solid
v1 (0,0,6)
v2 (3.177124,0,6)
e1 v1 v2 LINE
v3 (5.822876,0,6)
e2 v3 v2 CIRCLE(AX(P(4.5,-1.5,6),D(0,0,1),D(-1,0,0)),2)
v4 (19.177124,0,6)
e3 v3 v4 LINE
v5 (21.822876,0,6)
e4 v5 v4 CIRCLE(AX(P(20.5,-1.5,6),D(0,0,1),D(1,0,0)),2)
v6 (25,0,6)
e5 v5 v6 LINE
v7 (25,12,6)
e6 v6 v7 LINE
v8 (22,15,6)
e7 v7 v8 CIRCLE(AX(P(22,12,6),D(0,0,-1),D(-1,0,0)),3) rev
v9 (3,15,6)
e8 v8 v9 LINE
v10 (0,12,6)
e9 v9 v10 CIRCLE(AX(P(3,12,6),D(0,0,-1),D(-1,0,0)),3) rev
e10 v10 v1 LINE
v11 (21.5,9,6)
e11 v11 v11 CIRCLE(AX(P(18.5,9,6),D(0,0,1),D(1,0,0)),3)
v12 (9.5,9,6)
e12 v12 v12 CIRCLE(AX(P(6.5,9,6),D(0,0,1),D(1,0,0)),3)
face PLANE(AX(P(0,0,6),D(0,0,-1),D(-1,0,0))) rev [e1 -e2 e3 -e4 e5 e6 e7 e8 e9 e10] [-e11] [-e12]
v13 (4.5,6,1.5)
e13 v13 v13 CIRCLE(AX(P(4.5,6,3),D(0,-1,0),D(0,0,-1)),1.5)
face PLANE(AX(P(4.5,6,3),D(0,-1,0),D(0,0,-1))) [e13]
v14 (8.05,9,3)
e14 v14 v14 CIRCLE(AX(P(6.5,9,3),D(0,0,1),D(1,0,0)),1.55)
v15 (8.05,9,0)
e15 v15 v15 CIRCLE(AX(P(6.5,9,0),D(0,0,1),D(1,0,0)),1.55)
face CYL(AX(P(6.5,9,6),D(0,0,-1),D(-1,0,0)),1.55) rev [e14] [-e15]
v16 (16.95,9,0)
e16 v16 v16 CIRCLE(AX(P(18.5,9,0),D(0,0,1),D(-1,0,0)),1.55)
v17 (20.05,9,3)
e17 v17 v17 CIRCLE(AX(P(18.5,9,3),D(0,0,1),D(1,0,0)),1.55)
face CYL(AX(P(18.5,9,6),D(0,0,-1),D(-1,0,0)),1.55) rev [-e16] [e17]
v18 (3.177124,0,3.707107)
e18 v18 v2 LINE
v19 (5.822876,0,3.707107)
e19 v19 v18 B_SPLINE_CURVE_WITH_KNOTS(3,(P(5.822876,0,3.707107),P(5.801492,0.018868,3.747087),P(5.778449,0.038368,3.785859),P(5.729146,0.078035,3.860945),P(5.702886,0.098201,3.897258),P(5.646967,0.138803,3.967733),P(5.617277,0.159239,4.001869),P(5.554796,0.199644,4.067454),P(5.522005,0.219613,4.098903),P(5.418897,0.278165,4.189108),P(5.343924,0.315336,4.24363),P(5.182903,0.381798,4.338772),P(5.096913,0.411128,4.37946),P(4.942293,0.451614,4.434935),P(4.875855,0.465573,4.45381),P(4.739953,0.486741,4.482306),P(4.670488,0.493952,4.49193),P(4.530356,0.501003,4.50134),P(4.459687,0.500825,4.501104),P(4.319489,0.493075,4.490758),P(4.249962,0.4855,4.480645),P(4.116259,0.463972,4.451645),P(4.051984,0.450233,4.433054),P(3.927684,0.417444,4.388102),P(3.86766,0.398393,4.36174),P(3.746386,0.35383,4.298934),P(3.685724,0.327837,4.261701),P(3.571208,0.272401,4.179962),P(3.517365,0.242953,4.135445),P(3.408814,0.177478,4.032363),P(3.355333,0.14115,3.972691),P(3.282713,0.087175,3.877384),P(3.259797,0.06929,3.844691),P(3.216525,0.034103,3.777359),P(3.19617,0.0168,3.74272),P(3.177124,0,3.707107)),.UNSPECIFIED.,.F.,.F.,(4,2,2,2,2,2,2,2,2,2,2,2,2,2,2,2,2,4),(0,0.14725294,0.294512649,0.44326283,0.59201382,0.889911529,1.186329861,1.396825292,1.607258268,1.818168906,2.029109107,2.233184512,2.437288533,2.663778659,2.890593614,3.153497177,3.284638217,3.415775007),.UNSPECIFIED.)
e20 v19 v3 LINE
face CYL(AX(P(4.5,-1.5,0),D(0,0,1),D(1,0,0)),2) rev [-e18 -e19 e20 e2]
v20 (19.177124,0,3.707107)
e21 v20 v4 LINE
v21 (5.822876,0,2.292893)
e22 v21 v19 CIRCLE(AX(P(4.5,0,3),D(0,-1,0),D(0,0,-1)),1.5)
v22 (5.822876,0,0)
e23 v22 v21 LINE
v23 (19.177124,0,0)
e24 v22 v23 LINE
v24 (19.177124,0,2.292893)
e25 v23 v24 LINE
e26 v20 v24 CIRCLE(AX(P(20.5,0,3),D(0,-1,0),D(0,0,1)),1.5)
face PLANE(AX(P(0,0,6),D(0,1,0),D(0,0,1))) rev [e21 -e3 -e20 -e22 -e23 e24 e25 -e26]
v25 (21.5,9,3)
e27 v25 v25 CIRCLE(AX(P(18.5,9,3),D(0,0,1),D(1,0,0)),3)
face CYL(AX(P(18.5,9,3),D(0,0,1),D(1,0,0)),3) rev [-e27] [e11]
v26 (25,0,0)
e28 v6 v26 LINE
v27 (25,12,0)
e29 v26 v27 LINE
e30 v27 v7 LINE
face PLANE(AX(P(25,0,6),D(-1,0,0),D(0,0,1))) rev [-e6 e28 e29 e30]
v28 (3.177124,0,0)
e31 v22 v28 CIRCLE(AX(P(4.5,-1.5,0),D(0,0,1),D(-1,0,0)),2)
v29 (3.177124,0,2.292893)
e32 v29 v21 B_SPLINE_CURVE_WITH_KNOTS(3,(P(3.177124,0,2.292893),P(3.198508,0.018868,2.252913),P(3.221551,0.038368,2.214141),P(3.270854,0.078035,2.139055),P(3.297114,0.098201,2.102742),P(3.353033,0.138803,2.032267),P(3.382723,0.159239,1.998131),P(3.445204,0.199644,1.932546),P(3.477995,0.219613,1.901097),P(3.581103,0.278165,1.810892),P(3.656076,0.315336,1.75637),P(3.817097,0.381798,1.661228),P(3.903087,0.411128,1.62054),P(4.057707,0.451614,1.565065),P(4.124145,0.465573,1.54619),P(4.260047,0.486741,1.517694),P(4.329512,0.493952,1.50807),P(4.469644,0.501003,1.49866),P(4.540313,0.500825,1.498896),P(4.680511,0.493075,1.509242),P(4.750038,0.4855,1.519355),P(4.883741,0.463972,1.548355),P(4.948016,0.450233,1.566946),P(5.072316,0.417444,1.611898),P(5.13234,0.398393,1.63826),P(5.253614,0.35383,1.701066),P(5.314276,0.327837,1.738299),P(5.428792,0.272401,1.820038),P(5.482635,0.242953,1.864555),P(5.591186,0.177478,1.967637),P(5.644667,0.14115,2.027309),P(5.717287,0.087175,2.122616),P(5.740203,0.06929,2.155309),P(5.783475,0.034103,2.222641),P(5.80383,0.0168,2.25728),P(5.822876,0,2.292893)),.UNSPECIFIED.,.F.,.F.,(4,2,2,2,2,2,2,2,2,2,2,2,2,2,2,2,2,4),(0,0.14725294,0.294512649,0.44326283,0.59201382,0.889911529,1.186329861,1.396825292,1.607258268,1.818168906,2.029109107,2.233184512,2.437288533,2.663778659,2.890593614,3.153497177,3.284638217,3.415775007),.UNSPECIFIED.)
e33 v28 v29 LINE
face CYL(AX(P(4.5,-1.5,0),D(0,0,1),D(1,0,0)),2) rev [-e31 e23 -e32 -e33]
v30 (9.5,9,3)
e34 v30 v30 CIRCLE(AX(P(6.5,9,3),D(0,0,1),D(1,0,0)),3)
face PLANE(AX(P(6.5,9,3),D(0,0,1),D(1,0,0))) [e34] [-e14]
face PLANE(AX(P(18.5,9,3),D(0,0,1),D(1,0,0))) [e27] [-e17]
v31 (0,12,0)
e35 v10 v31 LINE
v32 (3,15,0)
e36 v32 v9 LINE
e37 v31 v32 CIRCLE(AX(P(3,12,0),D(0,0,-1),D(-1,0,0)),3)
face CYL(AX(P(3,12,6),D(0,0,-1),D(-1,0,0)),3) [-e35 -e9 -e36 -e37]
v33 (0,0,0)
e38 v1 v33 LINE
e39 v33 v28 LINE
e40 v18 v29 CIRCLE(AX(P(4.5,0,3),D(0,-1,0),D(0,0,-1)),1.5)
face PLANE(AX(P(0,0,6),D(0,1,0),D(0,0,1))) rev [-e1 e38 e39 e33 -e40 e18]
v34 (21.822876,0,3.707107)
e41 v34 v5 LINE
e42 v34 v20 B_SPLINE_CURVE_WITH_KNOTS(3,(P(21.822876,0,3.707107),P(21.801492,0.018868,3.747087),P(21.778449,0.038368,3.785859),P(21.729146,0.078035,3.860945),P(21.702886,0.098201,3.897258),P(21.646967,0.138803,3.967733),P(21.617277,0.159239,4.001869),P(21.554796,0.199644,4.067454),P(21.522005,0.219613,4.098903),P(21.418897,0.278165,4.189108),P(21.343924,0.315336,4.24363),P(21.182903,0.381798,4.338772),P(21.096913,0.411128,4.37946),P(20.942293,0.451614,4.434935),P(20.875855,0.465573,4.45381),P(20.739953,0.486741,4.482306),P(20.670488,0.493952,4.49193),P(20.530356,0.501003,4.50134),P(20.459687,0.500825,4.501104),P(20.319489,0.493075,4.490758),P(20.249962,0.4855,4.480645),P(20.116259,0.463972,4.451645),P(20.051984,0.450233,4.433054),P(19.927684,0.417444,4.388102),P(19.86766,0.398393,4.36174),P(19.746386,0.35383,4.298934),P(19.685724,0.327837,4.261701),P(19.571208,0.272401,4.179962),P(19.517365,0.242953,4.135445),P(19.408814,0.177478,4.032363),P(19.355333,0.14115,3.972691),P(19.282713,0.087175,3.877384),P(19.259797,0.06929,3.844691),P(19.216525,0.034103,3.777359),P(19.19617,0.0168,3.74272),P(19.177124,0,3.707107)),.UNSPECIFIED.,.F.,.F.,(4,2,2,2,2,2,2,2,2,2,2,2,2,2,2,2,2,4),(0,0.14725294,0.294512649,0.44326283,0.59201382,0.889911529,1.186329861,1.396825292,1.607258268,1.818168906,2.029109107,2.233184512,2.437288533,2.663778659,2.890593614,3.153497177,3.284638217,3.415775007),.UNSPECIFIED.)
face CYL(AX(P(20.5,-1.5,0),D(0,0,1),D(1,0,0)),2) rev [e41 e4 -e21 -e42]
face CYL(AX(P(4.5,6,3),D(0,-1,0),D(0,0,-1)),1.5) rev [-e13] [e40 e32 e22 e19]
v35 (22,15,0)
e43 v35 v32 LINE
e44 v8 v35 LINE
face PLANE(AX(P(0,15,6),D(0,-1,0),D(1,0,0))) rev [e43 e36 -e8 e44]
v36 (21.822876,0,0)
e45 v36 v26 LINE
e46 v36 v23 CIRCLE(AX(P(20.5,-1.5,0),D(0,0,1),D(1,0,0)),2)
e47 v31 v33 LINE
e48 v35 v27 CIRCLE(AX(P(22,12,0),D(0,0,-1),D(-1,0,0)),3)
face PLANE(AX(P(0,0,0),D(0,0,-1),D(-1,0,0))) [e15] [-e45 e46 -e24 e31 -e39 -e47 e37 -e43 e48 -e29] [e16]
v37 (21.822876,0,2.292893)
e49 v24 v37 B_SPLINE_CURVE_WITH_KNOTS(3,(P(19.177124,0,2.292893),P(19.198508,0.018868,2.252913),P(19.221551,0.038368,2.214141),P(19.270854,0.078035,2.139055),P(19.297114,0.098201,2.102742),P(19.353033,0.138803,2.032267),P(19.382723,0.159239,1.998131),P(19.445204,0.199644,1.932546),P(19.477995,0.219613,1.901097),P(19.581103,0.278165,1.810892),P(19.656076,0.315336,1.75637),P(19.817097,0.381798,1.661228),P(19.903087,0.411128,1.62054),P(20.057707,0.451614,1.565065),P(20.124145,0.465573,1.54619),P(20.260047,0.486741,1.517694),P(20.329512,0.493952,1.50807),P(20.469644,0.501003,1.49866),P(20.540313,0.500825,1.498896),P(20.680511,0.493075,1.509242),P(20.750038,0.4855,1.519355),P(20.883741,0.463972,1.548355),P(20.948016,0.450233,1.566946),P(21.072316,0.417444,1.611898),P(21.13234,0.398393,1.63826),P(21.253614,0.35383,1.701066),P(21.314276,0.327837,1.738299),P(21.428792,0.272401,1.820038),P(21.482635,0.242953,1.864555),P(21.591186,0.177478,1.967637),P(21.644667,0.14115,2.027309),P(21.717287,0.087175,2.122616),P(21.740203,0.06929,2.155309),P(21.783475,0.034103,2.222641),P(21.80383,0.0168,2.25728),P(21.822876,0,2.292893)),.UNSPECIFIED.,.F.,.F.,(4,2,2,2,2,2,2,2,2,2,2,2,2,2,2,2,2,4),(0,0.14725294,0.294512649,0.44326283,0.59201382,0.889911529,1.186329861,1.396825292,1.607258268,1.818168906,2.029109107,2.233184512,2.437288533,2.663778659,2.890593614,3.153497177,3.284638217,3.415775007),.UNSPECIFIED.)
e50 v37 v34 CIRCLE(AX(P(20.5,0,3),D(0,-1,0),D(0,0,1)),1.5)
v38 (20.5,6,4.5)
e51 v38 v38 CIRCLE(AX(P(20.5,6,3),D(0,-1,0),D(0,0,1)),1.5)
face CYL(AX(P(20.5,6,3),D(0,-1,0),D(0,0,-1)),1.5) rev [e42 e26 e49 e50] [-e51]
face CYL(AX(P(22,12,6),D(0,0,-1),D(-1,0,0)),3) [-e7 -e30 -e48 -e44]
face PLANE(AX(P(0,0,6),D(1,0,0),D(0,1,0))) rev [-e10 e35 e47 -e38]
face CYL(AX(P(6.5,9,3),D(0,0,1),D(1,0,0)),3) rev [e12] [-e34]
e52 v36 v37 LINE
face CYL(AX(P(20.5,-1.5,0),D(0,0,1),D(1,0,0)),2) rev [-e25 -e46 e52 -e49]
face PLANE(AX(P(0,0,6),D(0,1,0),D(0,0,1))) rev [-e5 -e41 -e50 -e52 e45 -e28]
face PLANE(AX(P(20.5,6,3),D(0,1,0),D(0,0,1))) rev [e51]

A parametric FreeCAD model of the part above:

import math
import FreeCAD as App
import Part
import Sketcher


def edges_at(feature, points):
    """Names of the edges that pass closest to the given points."""
    edges = feature.Shape.Edges
    near = lambda p: min(range(len(edges)), key=lambda i: edges[i].distToShape(Part.Vertex(*p))[0])
    return sorted({f"Edge{near(p) + 1}" for p in points})

doc = App.newDocument("Part")
body = doc.addObject("PartDesign::Body", "Body")

# Sketch on XY plane
sketch1 = doc.addObject("Sketcher::SketchObject", "Sketch")
body.addObject(sketch1)
sketch1.AttachmentSupport = (doc.XY_Plane, [""])
sketch1.MapMode = "FlatFace"
sketch1.addGeometry([
    Part.LineSegment(App.Vector(0, 15, 0), App.Vector(0, 0, 0)),  # 0
    Part.LineSegment(App.Vector(0, 0, 0), App.Vector(25, 0, 0)),  # 1
    Part.LineSegment(App.Vector(25, 0, 0), App.Vector(25, 15, 0)),  # 2
    Part.LineSegment(App.Vector(25, 15, 0), App.Vector(0, 15, 0)),  # 3
    Part.Circle(App.Vector(6.5, 9, 0), App.Vector(0, 0, 1), 1.6),  # 4
    Part.Circle(App.Vector(18.5, 9, 0), App.Vector(0, 0, 1), 1.6),  # 5
], False)
sketch1.addConstraint([
    Sketcher.Constraint("Coincident", 0, 2, 1, 1),
    Sketcher.Constraint("Coincident", 1, 2, 2, 1),
    Sketcher.Constraint("Coincident", 2, 2, 3, 1),
    Sketcher.Constraint("Coincident", 3, 2, 0, 1),
    Sketcher.Constraint("Vertical", 0),
    Sketcher.Constraint("Horizontal", 1),
    Sketcher.Constraint("Vertical", 2),
    Sketcher.Constraint("Horizontal", 3),
    Sketcher.Constraint("Coincident", 0, 2, -1, 1),
    Sketcher.Constraint("Equal", 4, 5),
    Sketcher.Constraint("Horizontal", 4, 3, 5, 3),
    Sketcher.Constraint("Diameter", 4, 3.1),
    Sketcher.Constraint("DistanceX", 1, 1, 1, 2, 25.0),
    Sketcher.Constraint("DistanceY", 0, 2, 0, 1, 15.0),
    Sketcher.Constraint("DistanceY", -1, 1, 4, 3, 9.0),
    Sketcher.Constraint("DistanceX", 4, 3, 5, 3, 12.0),
    Sketcher.Constraint("DistanceX", -1, 1, 4, 3, 6.5),
])
pad1 = doc.addObject("PartDesign::Pad", "Pad")
body.addObject(pad1)
pad1.Profile = sketch1
pad1.Length = 6

# Sketch on XZ plane
sketch2 = doc.addObject("Sketcher::SketchObject", "Sketch001")
body.addObject(sketch2)
sketch2.AttachmentSupport = (doc.XZ_Plane, [""])
sketch2.MapMode = "FlatFace"
sketch2.addGeometry([
    Part.Circle(App.Vector(4.5, 3, 0), App.Vector(0, 0, 1), 1.5),
    Part.Circle(App.Vector(20.5, 3, 0), App.Vector(0, 0, 1), 1.5),
], False)
sketch2.addConstraint([
    Sketcher.Constraint("Equal", 0, 1),
    Sketcher.Constraint("Horizontal", 0, 3, 1, 3),
    Sketcher.Constraint("Diameter", 0, 3.0),
    Sketcher.Constraint("DistanceY", -1, 1, 0, 3, 3.0),
    Sketcher.Constraint("DistanceX", 0, 3, 1, 3, 16.0),
    Sketcher.Constraint("DistanceX", -1, 1, 0, 3, 4.5),
])
pocket1 = doc.addObject("PartDesign::Pocket", "Pocket")
body.addObject(pocket1)
pocket1.Profile = sketch2
pocket1.Length = 6

# Sketch on XY plane
sketch3 = doc.addObject("Sketcher::SketchObject", "Sketch002")
body.addObject(sketch3)
sketch3.AttachmentSupport = (doc.XY_Plane, [""])
sketch3.MapMode = "FlatFace"
sketch3.AttachmentOffset = App.Placement(App.Vector(0, 0, 6), App.Rotation())
sketch3.addGeometry([
    Part.LineSegment(App.Vector(3.2, 0, 0), App.Vector(5.8, 0, 0)),
    Part.ArcOfCircle(Part.Circle(App.Vector(4.5, -1.5, 0), App.Vector(0, 0, 1), 2), math.radians(49), math.radians(131)),
    Part.LineSegment(App.Vector(19.2, 0, 0), App.Vector(21.8, 0, 0)),
    Part.ArcOfCircle(Part.Circle(App.Vector(20.5, -1.5, 0), App.Vector(0, 0, 1), 2), math.radians(49), math.radians(131)),
], False)
sketch3.addConstraint([
    Sketcher.Constraint("Coincident", 0, 1, 1, 2),
    Sketcher.Constraint("Coincident", 1, 1, 0, 2),
    Sketcher.Constraint("Coincident", 2, 1, 3, 2),
    Sketcher.Constraint("Coincident", 3, 1, 2, 2),
    Sketcher.Constraint("Horizontal", 0),
    Sketcher.Constraint("Horizontal", 2),
    Sketcher.Constraint("Equal", 1, 3),
    Sketcher.Constraint("PointOnObject", 0, 1, -1),
    Sketcher.Constraint("PointOnObject", 2, 1, -1),
    Sketcher.Constraint("Horizontal", 1, 3, 3, 3),
    Sketcher.Constraint("Radius", 1, 2.0),
    Sketcher.Constraint("DistanceX", 1, 3, 3, 3, 16.0),
    Sketcher.Constraint("DistanceX", -1, 1, 1, 3, 4.5),
    Sketcher.Constraint("DistanceY", 1, 3, -1, 1, 1.5),
])
pocket2 = doc.addObject("PartDesign::Pocket", "Pocket001")
body.addObject(pocket2)
pocket2.Profile = sketch3
pocket2.Type = "ThroughAll"
doc.recompute()

fillet = doc.addObject("PartDesign::Fillet", "Fillet")
body.addObject(fillet)
fillet.Base = (pocket2, edges_at(pocket2, [(0, 15, 3), (25, 15, 3)]))
fillet.Radius = 3

# Sketch on XY plane
sketch4 = doc.addObject("Sketcher::SketchObject", "Sketch003")
body.addObject(sketch4)
sketch4.AttachmentSupport = (doc.XY_Plane, [""])
sketch4.MapMode = "FlatFace"
sketch4.AttachmentOffset = App.Placement(App.Vector(0, 0, 6), App.Rotation())
sketch4.addGeometry([
    Part.Circle(App.Vector(6.5, 9, 0), App.Vector(0, 0, 1), 3),
    Part.Circle(App.Vector(18.5, 9, 0), App.Vector(0, 0, 1), 3),
], False)
sketch4.addConstraint([
    Sketcher.Constraint("Equal", 0, 1),
    Sketcher.Constraint("Horizontal", 0, 3, 1, 3),
    Sketcher.Constraint("Diameter", 0, 6.0),
    Sketcher.Constraint("DistanceY", -1, 1, 0, 3, 9.0),
    Sketcher.Constraint("DistanceX", 0, 3, 1, 3, 12.0),
    Sketcher.Constraint("DistanceX", -1, 1, 0, 3, 6.5),
])
pocket3 = doc.addObject("PartDesign::Pocket", "Pocket002")
body.addObject(pocket3)
pocket3.Profile = sketch4
pocket3.Length = 3

doc.recompute()
